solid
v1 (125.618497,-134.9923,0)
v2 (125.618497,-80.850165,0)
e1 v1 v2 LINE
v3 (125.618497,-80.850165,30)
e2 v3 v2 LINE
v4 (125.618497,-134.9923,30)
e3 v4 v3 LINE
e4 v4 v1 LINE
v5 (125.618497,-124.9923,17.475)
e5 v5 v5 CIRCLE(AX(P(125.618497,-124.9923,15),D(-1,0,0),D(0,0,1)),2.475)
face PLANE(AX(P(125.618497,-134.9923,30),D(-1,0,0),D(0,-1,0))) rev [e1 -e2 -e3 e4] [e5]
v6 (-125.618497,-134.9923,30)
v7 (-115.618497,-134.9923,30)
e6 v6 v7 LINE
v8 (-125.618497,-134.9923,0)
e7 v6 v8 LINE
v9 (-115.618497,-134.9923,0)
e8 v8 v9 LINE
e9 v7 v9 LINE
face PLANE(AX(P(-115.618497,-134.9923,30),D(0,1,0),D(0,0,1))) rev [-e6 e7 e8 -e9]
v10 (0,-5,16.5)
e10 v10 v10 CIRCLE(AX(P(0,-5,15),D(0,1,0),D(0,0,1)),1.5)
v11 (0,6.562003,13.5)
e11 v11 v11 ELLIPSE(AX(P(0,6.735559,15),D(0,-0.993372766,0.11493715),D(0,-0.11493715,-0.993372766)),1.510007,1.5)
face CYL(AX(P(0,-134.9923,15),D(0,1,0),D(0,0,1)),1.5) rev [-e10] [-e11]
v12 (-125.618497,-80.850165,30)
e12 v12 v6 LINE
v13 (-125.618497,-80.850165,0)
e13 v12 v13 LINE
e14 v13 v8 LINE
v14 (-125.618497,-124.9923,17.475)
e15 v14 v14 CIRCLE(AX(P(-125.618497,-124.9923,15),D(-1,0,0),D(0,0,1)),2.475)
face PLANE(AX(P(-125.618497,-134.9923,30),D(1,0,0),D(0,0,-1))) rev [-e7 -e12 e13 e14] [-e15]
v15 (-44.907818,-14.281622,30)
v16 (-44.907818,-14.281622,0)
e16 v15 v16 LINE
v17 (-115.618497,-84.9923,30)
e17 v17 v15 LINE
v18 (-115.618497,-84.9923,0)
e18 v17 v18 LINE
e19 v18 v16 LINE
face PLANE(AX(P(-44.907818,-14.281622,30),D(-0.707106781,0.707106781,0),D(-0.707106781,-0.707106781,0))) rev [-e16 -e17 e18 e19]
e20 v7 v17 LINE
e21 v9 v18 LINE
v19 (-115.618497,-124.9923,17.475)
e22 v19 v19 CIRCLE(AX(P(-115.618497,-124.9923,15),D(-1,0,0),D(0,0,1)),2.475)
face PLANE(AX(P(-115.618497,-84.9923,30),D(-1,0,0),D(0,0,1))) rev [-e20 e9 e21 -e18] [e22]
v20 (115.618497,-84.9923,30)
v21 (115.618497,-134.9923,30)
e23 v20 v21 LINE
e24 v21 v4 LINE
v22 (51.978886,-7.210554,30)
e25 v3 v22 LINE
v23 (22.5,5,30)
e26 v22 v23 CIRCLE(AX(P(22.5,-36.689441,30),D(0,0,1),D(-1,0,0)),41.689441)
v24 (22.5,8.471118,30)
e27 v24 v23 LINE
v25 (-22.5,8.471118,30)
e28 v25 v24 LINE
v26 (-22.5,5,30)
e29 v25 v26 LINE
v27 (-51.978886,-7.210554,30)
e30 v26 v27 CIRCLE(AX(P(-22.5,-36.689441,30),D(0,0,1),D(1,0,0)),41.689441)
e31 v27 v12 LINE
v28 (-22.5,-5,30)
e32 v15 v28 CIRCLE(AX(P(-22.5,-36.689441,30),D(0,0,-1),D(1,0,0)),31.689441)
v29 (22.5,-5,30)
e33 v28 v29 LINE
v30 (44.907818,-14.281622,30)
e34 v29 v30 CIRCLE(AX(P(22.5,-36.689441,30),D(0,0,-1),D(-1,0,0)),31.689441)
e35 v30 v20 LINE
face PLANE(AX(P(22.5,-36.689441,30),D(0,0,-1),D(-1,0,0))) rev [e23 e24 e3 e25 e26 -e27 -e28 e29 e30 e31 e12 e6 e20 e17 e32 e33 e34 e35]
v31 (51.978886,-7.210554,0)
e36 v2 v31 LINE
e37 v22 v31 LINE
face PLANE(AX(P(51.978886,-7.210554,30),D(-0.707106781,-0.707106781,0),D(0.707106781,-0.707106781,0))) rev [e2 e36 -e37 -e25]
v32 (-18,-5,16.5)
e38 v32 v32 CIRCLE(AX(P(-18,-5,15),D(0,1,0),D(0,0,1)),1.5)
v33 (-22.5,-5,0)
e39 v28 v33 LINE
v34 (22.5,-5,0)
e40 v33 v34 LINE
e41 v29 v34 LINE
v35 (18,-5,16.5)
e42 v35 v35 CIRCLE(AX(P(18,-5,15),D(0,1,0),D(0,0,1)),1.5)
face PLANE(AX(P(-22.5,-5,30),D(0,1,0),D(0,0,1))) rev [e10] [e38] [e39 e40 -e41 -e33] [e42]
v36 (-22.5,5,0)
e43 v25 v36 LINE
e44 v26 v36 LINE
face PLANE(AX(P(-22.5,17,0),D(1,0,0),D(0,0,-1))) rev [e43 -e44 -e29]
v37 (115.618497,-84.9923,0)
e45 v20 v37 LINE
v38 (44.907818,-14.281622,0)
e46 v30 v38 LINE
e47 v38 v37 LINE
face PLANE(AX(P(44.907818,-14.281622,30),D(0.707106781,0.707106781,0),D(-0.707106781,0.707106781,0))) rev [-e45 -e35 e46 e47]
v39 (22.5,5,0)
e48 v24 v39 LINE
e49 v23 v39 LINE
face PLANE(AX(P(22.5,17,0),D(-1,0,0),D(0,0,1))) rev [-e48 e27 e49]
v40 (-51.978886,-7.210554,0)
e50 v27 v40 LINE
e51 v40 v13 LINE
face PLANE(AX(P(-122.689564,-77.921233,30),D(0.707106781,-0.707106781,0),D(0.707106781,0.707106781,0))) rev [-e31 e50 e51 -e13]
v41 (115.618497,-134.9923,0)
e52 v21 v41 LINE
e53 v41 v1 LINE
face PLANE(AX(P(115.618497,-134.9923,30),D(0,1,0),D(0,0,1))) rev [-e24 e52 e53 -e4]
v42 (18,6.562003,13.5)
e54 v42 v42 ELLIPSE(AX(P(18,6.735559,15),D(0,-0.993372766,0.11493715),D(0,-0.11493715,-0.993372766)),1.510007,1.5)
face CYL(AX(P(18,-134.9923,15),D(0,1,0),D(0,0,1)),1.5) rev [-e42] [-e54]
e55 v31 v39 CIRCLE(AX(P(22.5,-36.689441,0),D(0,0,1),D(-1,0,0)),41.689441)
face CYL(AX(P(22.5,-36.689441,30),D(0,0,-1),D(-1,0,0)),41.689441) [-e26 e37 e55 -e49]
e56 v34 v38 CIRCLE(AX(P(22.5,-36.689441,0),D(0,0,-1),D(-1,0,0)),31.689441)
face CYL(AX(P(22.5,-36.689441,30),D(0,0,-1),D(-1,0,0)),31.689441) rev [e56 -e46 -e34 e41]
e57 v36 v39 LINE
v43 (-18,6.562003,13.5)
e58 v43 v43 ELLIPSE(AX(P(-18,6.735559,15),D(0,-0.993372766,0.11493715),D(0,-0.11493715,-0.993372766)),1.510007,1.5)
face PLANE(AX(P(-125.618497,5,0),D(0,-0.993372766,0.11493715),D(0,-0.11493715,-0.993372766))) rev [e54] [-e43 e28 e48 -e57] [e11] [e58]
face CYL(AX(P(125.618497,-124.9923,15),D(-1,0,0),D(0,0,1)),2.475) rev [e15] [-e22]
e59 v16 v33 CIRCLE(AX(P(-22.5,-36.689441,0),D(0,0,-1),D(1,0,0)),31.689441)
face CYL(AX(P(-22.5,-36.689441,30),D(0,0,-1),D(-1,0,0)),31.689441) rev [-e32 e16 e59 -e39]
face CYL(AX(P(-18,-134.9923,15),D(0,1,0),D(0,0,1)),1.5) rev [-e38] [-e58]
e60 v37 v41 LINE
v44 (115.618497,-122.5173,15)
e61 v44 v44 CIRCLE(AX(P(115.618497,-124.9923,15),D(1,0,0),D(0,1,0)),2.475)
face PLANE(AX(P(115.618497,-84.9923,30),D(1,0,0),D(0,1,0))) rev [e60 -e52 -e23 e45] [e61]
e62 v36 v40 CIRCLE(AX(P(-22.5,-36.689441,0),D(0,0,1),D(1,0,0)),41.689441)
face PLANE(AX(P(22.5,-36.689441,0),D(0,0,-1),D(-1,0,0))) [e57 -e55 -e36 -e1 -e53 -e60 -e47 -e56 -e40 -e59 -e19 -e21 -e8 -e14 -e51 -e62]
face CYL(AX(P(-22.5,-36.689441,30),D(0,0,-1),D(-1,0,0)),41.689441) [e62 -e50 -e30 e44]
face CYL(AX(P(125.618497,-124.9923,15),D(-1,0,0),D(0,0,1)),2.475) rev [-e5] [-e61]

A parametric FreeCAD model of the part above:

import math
import FreeCAD as App
import Part
import Sketcher
from FreeCAD import Vector
Q = App.Units.Quantity

doc = App.newDocument("Part")
params = doc.addObject("Spreadsheet::Sheet", "Params")
for row, (alias, value) in enumerate([
    ("sketch1_width", "45 mm"),
    ("sketch1_width2", "10 mm"),
    ("sketch1_height", "50 mm"),
    ("sketch1_length", "100 mm"),
    ("pad1_length", "30 mm"),
    ("sketch2_diameter", "4.95 mm"),
    ("sketch3_diameter", "3 mm"),
    ("sketch4_width", "45 mm"),
    ("sketch4_height", "30 mm"),
    ("pad2_length", "12 mm"),
    ("sketch5_height", "30 mm"),
    ("sketch6_diameter", "3 mm"),
], start=1):
    params.set(f"A{row}", alias)
    params.set(f"B{row}", "=" + value)
    params.setAlias(f"B{row}", alias)

body = doc.addObject("PartDesign::Body", "Body")

# Sketch on XY plane
sketch1 = body.newObject("Sketcher::SketchObject", "Sketch")
sketch1.AttachmentSupport = (doc.getObject("XY_Plane"), [""])
sketch1.MapMode = "FlatFace"
sketch1.addGeometry([
    Part.LineSegment(Vector(-22, -5, 0), Vector(22, -5, 0)),  # 0
    Part.ArcOfCircle(Part.Circle(Vector(22, -37, 0), Vector(0, 0, 1), 32), math.radians(45), math.radians(90)),  # 1
    Part.LineSegment(Vector(45, -14, 0), Vector(116, -85, 0)),  # 2
    Part.LineSegment(Vector(116, -85, 0), Vector(116, -135, 0)),  # 3
    Part.LineSegment(Vector(116, -135, 0), Vector(126, -135, 0)),  # 4
    Part.LineSegment(Vector(126, -135, 0), Vector(126, -81, 0)),  # 5
    Part.LineSegment(Vector(126, -81, 0), Vector(52, -7, 0)),  # 6
    Part.ArcOfCircle(Part.Circle(Vector(22, -37, 0), Vector(0, 0, 1), 42), math.radians(45), math.radians(90)),  # 7
    Part.LineSegment(Vector(22, 5, 0), Vector(-22, 5, 0)),  # 8
    Part.ArcOfCircle(Part.Circle(Vector(-22, -37, 0), Vector(0, 0, 1), 42), math.radians(90), math.radians(135)),  # 9
    Part.LineSegment(Vector(-52, -7, 0), Vector(-126, -81, 0)),  # 10
    Part.LineSegment(Vector(-126, -81, 0), Vector(-126, -135, 0)),  # 11
    Part.LineSegment(Vector(-126, -135, 0), Vector(-116, -135, 0)),  # 12
    Part.LineSegment(Vector(-116, -135, 0), Vector(-116, -85, 0)),  # 13
    Part.LineSegment(Vector(-116, -85, 0), Vector(-45, -14, 0)),  # 14
    Part.ArcOfCircle(Part.Circle(Vector(-22, -37, 0), Vector(0, 0, 1), 32), math.radians(90), math.radians(135)),  # 15
], False)
sketch1.addConstraint([
    Sketcher.Constraint("Tangent", 0, 2, 1, 2),
    Sketcher.Constraint("Tangent", 1, 1, 2, 1),
    Sketcher.Constraint("Coincident", 2, 2, 3, 1),
    Sketcher.Constraint("Coincident", 3, 2, 4, 1),
    Sketcher.Constraint("Coincident", 4, 2, 5, 1),
    Sketcher.Constraint("Coincident", 5, 2, 6, 1),
    Sketcher.Constraint("Tangent", 6, 2, 7, 1),
    Sketcher.Constraint("Tangent", 7, 2, 8, 1),
    Sketcher.Constraint("Tangent", 8, 2, 9, 1),
    Sketcher.Constraint("Tangent", 9, 2, 10, 1),
    Sketcher.Constraint("Coincident", 10, 2, 11, 1),
    Sketcher.Constraint("Coincident", 11, 2, 12, 1),
    Sketcher.Constraint("Coincident", 12, 2, 13, 1),
    Sketcher.Constraint("Coincident", 13, 2, 14, 1),
    Sketcher.Constraint("Tangent", 14, 2, 15, 2),
    Sketcher.Constraint("Tangent", 15, 1, 0, 1),
    Sketcher.Constraint("Horizontal", 0),
    Sketcher.Constraint("Vertical", 3),
    Sketcher.Constraint("Horizontal", 4),
    Sketcher.Constraint("Vertical", 5),
    Sketcher.Constraint("Horizontal", 8),
    Sketcher.Constraint("Vertical", 11),
    Sketcher.Constraint("Horizontal", 12),
    Sketcher.Constraint("Vertical", 13),
    Sketcher.Constraint("Coincident", 7, 3, 1, 3),
    Sketcher.Constraint("Coincident", 15, 3, 9, 3),
    Sketcher.Constraint("Equal", 7, 9),
    Sketcher.Constraint("Symmetric", 0, 2, 8, 2, -1, 1),
    Sketcher.Constraint("Symmetric", 5, 2, 10, 2, -2),
    Sketcher.Constraint("Symmetric", 3, 2, 12, 2, -2),
    Sketcher.Constraint("Parallel", 2, 6),
    Sketcher.Constraint("Perpendicular", 6, 10),
    Sketcher.Constraint("Parallel", 10, 14),
    Sketcher.Constraint("DistanceX", 0, 1, 0, 2, 45.0),
    Sketcher.Constraint("DistanceX", 4, 1, 4, 2, 10.0),
    Sketcher.Constraint("DistanceY", 3, 2, 3, 1, 50.0),
    Sketcher.Constraint("Distance", 2, 100.0),
    Sketcher.Constraint("DistanceY", 0, 2, -1, 1, 5.0),
    Sketcher.Constraint("Radius", 1, 31.689441),
])
sketch1.setExpression("Constraints[33]", "Params.sketch1_width")
sketch1.setExpression("Constraints[34]", "Params.sketch1_width2")
sketch1.setExpression("Constraints[35]", "Params.sketch1_height")
sketch1.setExpression("Constraints[36]", "Params.sketch1_length")
pad1 = body.newObject("PartDesign::Pad", "Pad")
pad1.Profile = sketch1
pad1.setExpression("Length", "Params.pad1_length")

# Sketch on YZ plane
sketch2 = body.newObject("Sketcher::SketchObject", "Sketch001")
sketch2.AttachmentSupport = (doc.getObject("YZ_Plane"), [""])
sketch2.MapMode = "FlatFace"
sketch2.AttachmentOffset = App.Placement(Vector(0, 0, -125.618497), App.Rotation())
sketch2.addGeometry(Part.Circle(Vector(-125, 15, 0), Vector(0, 0, 1), 2.5), False)
sketch2.addConstraint([
    Sketcher.Constraint("Diameter", 0, 4.95),
    Sketcher.Constraint("DistanceY", -1, 1, 0, 3, 15.0),
    Sketcher.Constraint("DistanceX", 0, 3, -1, 1, 124.9923),
])
sketch2.setExpression("Constraints[0]", "Params.sketch2_diameter")
pocket1 = body.newObject("PartDesign::Pocket", "Pocket")
pocket1.Profile = sketch2
pocket1.Type = "ThroughAll"
pocket1.Reversed = True

# Sketch on XZ plane
sketch3 = body.newObject("Sketcher::SketchObject", "Sketch002")
sketch3.AttachmentSupport = (doc.getObject("XZ_Plane"), [""])
sketch3.MapMode = "FlatFace"
sketch3.AttachmentOffset = App.Placement(Vector(0, 0, -5), App.Rotation())
sketch3.addGeometry([
    Part.Circle(Vector(0, 15, 0), Vector(0, 0, 1), 1.5),
    Part.Circle(Vector(18, 15, 0), Vector(0, 0, 1), 1.5),
    Part.Circle(Vector(-18, 15, 0), Vector(0, 0, 1), 1.5),
], False)
sketch3.addConstraint([
    Sketcher.Constraint("Equal", 0, 1),
    Sketcher.Constraint("Equal", 1, 2),
    Sketcher.Constraint("Symmetric", 1, 3, 2, 3, -2),
    Sketcher.Constraint("PointOnObject", 0, 3, -2),
    Sketcher.Constraint("Horizontal", 0, 3, 1, 3),
    Sketcher.Constraint("Diameter", 0, 3.0),
    Sketcher.Constraint("DistanceY", -1, 1, 0, 3, 15.0),
    Sketcher.Constraint("DistanceX", -1, 1, 1, 3, 18.0),
])
sketch3.setExpression("Constraints[5]", "Params.sketch3_diameter")
pocket2 = body.newObject("PartDesign::Pocket", "Pocket001")
pocket2.Profile = sketch3
pocket2.Type = "ThroughAll"
pocket2.Reversed = True

# Sketch on XZ plane
sketch4 = body.newObject("Sketcher::SketchObject", "Sketch003")
sketch4.AttachmentSupport = (doc.getObject("XZ_Plane"), [""])
sketch4.MapMode = "FlatFace"
sketch4.AttachmentOffset = App.Placement(Vector(0, 0, -5), App.Rotation())
sketch4.addGeometry([
    Part.LineSegment(Vector(-22, 0, 0), Vector(-22, 30, 0)),
    Part.LineSegment(Vector(-22, 30, 0), Vector(22, 30, 0)),
    Part.LineSegment(Vector(22, 30, 0), Vector(22, 0, 0)),
    Part.LineSegment(Vector(22, 0, 0), Vector(-22, 0, 0)),
], False)
sketch4.addConstraint([
    Sketcher.Constraint("Coincident", 0, 2, 1, 1),
    Sketcher.Constraint("Coincident", 1, 2, 2, 1),
    Sketcher.Constraint("Coincident", 2, 2, 3, 1),
    Sketcher.Constraint("Coincident", 3, 2, 0, 1),
    Sketcher.Constraint("Vertical", 0),
    Sketcher.Constraint("Horizontal", 1),
    Sketcher.Constraint("Vertical", 2),
    Sketcher.Constraint("Horizontal", 3),
    Sketcher.Constraint("Symmetric", 2, 2, 3, 2, -1, 1),
    Sketcher.Constraint("DistanceX", 1, 1, 1, 2, 45.0),
    Sketcher.Constraint("DistanceY", 0, 1, 0, 2, 30.0),
])
sketch4.setExpression("Constraints[9]", "Params.sketch4_width")
sketch4.setExpression("Constraints[10]", "Params.sketch4_height")
pad2 = body.newObject("PartDesign::Pad", "Pad001")
pad2.Profile = sketch4
pad2.setExpression("Length", "Params.pad2_length")
pad2.Reversed = True

# Sketch on YZ plane
sketch5 = body.newObject("Sketcher::SketchObject", "Sketch004")
sketch5.AttachmentSupport = (doc.getObject("YZ_Plane"), [""])
sketch5.MapMode = "FlatFace"
sketch5.AttachmentOffset = App.Placement(Vector(0, 0, 22.5), App.Rotation())
sketch5.addGeometry([
    Part.LineSegment(Vector(8, 30, 0), Vector(5, 0, 0)),
    Part.LineSegment(Vector(5, 0, 0), Vector(20, 0, 0)),
    Part.LineSegment(Vector(20, 0, 0), Vector(20, 30, 0)),
    Part.LineSegment(Vector(20, 30, 0), Vector(8, 30, 0)),
], False)
sketch5.addConstraint([
    Sketcher.Constraint("Coincident", 0, 2, 1, 1),
    Sketcher.Constraint("Coincident", 1, 2, 2, 1),
    Sketcher.Constraint("Coincident", 2, 2, 3, 1),
    Sketcher.Constraint("Coincident", 3, 2, 0, 1),
    Sketcher.Constraint("Horizontal", 1),
    Sketcher.Constraint("Vertical", 2),
    Sketcher.Constraint("Horizontal", 3),
    Sketcher.Constraint("PointOnObject", 0, 2, -1),
    Sketcher.Constraint("DistanceY", 2, 1, 2, 2, 30.0),
    Sketcher.Constraint("DistanceX", -1, 1, 0, 2, 5.0),
    Sketcher.Constraint("Angle", 0, Q("-96.6 deg")),
    Sketcher.Constraint("DistanceX", 3, 2, 3, 1, 11.451979),
])
sketch5.setExpression("Constraints[8]", "Params.sketch5_height")
pocket3 = body.newObject("PartDesign::Pocket", "Pocket002")
pocket3.Profile = sketch5
pocket3.Type = "ThroughAll"

# Sketch on XZ plane
sketch6 = body.newObject("Sketcher::SketchObject", "Sketch005")
sketch6.AttachmentSupport = (doc.getObject("XZ_Plane"), [""])
sketch6.MapMode = "FlatFace"
sketch6.AttachmentOffset = App.Placement(Vector(0, 0, 5), App.Rotation())
sketch6.addGeometry([
    Part.Circle(Vector(0, 15, 0), Vector(0, 0, 1), 1.5),
    Part.Circle(Vector(-18, 15, 0), Vector(0, 0, 1), 1.5),
    Part.Circle(Vector(18, 15, 0), Vector(0, 0, 1), 1.5),
], False)
sketch6.addConstraint([
    Sketcher.Constraint("Equal", 0, 1),
    Sketcher.Constraint("Equal", 1, 2),
    Sketcher.Constraint("Symmetric", 1, 3, 2, 3, -2),
    Sketcher.Constraint("PointOnObject", 0, 3, -2),
    Sketcher.Constraint("Horizontal", 0, 3, 1, 3),
    Sketcher.Constraint("Diameter", 0, 3.0),
    Sketcher.Constraint("DistanceY", -1, 1, 0, 3, 15.0),
    Sketcher.Constraint("DistanceX", 1, 3, -1, 1, 18.0),
])
sketch6.setExpression("Constraints[5]", "Params.sketch6_diameter")
pocket4 = body.newObject("PartDesign::Pocket", "Pocket003")
pocket4.Profile = sketch6
pocket4.Type = "ThroughAll"

doc.recompute()
